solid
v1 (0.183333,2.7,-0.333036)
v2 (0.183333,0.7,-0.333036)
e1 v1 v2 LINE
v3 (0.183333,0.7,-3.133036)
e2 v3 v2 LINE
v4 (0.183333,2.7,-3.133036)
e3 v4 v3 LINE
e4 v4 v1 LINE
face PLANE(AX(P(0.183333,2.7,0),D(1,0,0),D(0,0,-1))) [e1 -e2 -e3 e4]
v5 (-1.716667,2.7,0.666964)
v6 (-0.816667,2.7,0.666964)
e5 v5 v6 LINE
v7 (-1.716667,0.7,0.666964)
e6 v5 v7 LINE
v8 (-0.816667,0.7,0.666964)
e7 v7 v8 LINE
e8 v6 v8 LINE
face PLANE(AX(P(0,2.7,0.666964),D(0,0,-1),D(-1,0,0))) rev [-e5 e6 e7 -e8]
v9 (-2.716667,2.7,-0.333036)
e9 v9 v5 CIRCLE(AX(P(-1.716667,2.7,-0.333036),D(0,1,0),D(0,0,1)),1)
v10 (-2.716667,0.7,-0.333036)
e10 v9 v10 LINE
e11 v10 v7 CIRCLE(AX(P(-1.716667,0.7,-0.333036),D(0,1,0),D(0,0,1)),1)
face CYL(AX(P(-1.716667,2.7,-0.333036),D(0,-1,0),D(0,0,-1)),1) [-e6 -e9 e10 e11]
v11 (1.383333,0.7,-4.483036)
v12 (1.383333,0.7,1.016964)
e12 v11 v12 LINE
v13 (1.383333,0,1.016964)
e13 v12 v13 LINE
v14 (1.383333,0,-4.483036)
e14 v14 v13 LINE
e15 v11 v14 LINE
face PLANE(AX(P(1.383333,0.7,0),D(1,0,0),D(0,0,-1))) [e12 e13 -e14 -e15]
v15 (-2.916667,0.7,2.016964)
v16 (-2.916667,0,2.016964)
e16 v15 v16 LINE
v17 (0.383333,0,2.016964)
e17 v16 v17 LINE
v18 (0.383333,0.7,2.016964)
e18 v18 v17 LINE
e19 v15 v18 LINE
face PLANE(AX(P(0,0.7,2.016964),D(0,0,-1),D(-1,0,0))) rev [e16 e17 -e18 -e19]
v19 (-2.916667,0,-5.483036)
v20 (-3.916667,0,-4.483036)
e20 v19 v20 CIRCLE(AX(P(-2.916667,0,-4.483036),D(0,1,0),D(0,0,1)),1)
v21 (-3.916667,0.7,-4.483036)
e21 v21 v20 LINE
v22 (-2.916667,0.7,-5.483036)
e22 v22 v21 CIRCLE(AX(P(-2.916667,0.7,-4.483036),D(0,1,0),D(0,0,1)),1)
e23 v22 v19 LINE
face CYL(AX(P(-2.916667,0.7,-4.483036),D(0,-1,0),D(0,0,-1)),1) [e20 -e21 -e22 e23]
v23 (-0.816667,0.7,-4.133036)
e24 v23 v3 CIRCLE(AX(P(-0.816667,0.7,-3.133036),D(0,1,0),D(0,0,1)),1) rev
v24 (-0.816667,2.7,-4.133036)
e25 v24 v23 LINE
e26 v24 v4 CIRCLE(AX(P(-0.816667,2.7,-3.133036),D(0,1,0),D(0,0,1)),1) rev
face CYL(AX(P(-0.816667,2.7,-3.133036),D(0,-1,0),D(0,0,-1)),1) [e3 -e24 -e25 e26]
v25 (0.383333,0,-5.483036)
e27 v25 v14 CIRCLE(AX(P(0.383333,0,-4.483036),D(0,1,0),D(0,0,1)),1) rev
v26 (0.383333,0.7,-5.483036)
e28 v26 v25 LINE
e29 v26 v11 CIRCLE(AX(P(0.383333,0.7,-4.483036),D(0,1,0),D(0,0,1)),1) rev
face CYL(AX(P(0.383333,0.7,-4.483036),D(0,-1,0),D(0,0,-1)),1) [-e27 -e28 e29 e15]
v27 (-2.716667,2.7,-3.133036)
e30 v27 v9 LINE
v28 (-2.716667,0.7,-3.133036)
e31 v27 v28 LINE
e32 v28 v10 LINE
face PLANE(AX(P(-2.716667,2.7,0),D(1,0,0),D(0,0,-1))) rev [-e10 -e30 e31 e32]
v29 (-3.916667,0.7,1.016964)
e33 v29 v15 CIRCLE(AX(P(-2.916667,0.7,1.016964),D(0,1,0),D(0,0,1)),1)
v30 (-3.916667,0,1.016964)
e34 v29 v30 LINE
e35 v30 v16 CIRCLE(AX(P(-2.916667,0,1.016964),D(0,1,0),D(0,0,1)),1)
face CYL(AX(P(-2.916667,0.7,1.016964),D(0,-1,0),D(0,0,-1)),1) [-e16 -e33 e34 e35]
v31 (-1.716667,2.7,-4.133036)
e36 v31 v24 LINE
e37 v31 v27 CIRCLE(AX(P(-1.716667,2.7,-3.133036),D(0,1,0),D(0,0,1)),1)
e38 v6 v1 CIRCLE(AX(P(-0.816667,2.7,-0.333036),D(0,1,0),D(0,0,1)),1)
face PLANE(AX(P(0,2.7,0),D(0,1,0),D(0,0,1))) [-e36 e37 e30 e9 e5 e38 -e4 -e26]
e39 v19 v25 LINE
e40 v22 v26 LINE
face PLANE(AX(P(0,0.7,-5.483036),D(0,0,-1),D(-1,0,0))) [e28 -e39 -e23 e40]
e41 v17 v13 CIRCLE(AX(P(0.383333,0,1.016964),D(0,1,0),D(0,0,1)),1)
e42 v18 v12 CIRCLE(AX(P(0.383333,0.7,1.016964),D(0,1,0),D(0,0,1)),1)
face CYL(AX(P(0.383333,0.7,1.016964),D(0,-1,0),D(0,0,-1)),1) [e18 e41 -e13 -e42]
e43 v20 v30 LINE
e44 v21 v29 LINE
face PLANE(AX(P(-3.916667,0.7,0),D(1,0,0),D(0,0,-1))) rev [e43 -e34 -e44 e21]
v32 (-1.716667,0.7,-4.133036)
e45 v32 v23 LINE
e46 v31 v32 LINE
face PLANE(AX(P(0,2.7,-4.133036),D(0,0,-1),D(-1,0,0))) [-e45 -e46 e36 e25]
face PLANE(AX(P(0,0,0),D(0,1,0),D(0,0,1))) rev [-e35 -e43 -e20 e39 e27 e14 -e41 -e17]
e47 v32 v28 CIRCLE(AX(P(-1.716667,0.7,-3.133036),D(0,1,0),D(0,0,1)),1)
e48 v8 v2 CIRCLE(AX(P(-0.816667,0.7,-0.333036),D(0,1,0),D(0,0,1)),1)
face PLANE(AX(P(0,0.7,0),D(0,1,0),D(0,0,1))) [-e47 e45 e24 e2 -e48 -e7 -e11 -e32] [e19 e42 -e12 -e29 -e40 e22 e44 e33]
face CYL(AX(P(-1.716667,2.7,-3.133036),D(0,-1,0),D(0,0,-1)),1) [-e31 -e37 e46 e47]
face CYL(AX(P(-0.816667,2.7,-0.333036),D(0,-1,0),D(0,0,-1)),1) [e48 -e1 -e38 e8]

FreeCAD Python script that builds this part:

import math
import FreeCAD as App
import Part
import Sketcher

V = App.Vector
Q = App.Units.Quantity

doc = App.newDocument("Part")
body = doc.addObject("PartDesign::Body", "Body")

sketch1 = body.newObject("Sketcher::SketchObject", "Sketch")
sketch1.AttachmentSupport = (doc.getObject("XZ_Plane"), [""])
sketch1.MapMode = "FlatFace"
sketch1.addGeometry(Part.LineSegment(V(0.4, -5.5, 0), V(-2.9, -5.5, 0)), False)
sketch1.addGeometry(Part.ArcOfCircle(Part.Circle(V(-2.9, -4.5, 0), V(0, 0, 1), 1), math.radians(-180), math.radians(-90)), False)
sketch1.addGeometry(Part.LineSegment(V(-3.9, -4.5, 0), V(-3.9, 1, 0)), False)
sketch1.addGeometry(Part.ArcOfCircle(Part.Circle(V(-2.9, 1, 0), V(0, 0, 1), 1), math.radians(90), math.radians(180)), False)
sketch1.addGeometry(Part.LineSegment(V(-2.9, 2, 0), V(0.4, 2, 0)), False)
sketch1.addGeometry(Part.ArcOfCircle(Part.Circle(V(0.4, 1, 0), V(0, 0, 1), 1), math.radians(0), math.radians(90)), False)
sketch1.addGeometry(Part.LineSegment(V(1.4, 1, 0), V(1.4, -4.5, 0)), False)
sketch1.addGeometry(Part.ArcOfCircle(Part.Circle(V(0.4, -4.5, 0), V(0, 0, 1), 1), math.radians(-90), math.radians(0)), False)
sketch1.addGeometry(Part.LineSegment(V(-1.7, -4.1, 0), V(-0.8, -4.1, 0)), False)
sketch1.addGeometry(Part.ArcOfCircle(Part.Circle(V(-0.8, -3.1, 0), V(0, 0, 1), 1), math.radians(-90), math.radians(0)), False)
sketch1.addGeometry(Part.LineSegment(V(0.2, -3.1, 0), V(0.2, -0.3, 0)), False)
sketch1.addGeometry(Part.ArcOfCircle(Part.Circle(V(-0.8, -0.3, 0), V(0, 0, 1), 1), math.radians(0), math.radians(90)), False)
sketch1.addGeometry(Part.LineSegment(V(-0.8, 0.7, 0), V(-1.7, 0.7, 0)), False)
sketch1.addGeometry(Part.ArcOfCircle(Part.Circle(V(-1.7, -0.3, 0), V(0, 0, 1), 1), math.radians(90), math.radians(180)), False)
sketch1.addGeometry(Part.LineSegment(V(-2.7, -0.3, 0), V(-2.7, -3.1, 0)), False)
sketch1.addGeometry(Part.ArcOfCircle(Part.Circle(V(-1.7, -3.1, 0), V(0, 0, 1), 1), math.radians(-180), math.radians(-90)), False)
sketch1.addConstraint(Sketcher.Constraint("Tangent", 0, 2, 1, 2))
sketch1.addConstraint(Sketcher.Constraint("Tangent", 1, 1, 2, 1))
sketch1.addConstraint(Sketcher.Constraint("Tangent", 2, 2, 3, 2))
sketch1.addConstraint(Sketcher.Constraint("Tangent", 3, 1, 4, 1))
sketch1.addConstraint(Sketcher.Constraint("Tangent", 4, 2, 5, 2))
sketch1.addConstraint(Sketcher.Constraint("Tangent", 5, 1, 6, 1))
sketch1.addConstraint(Sketcher.Constraint("Tangent", 6, 2, 7, 2))
sketch1.addConstraint(Sketcher.Constraint("Tangent", 7, 1, 0, 1))
sketch1.addConstraint(Sketcher.Constraint("Tangent", 8, 2, 9, 1))
sketch1.addConstraint(Sketcher.Constraint("Tangent", 9, 2, 10, 1))
sketch1.addConstraint(Sketcher.Constraint("Tangent", 10, 2, 11, 1))
sketch1.addConstraint(Sketcher.Constraint("Tangent", 11, 2, 12, 1))
sketch1.addConstraint(Sketcher.Constraint("Tangent", 12, 2, 13, 1))
sketch1.addConstraint(Sketcher.Constraint("Tangent", 13, 2, 14, 1))
sketch1.addConstraint(Sketcher.Constraint("Tangent", 14, 2, 15, 1))
sketch1.addConstraint(Sketcher.Constraint("Tangent", 15, 2, 8, 1))
sketch1.addConstraint(Sketcher.Constraint("Horizontal", 0))
sketch1.addConstraint(Sketcher.Constraint("Vertical", 2))
sketch1.addConstraint(Sketcher.Constraint("Horizontal", 4))
sketch1.addConstraint(Sketcher.Constraint("Vertical", 6))
sketch1.addConstraint(Sketcher.Constraint("Horizontal", 8))
sketch1.addConstraint(Sketcher.Constraint("Vertical", 10))
sketch1.addConstraint(Sketcher.Constraint("Horizontal", 12))
sketch1.addConstraint(Sketcher.Constraint("Vertical", 14))
sketch1.addConstraint(Sketcher.Constraint("Equal", 1, 3))
sketch1.addConstraint(Sketcher.Constraint("Equal", 3, 5))
sketch1.addConstraint(Sketcher.Constraint("Equal", 5, 7))
sketch1.addConstraint(Sketcher.Constraint("Equal", 7, 9))
sketch1.addConstraint(Sketcher.Constraint("Equal", 9, 11))
sketch1.addConstraint(Sketcher.Constraint("Equal", 11, 13))
sketch1.addConstraint(Sketcher.Constraint("Equal", 13, 15))
sketch1.addConstraint(Sketcher.Constraint("Radius", 1, Q("1 mm")))
sketch1.addConstraint(Sketcher.Constraint("DistanceX", 0, 2, 0, 1, Q("3.3 mm")))
sketch1.addConstraint(Sketcher.Constraint("DistanceX", 8, 1, 8, 2, Q("0.9 mm")))
sketch1.addConstraint(Sketcher.Constraint("DistanceY", 2, 1, 2, 2, Q("5.5 mm")))
sketch1.addConstraint(Sketcher.Constraint("DistanceY", 10, 1, 10, 2, Q("2.8 mm")))
sketch1.addConstraint(Sketcher.Constraint("DistanceX", 9, 3, 7, 3, Q("1.2 mm")))
sketch1.addConstraint(Sketcher.Constraint("DistanceY", 7, 3, 9, 3, Q("1.35 mm")))
sketch1.addConstraint(Sketcher.Constraint("DistanceX", 1, 3, -1, 1, Q("2.916667 mm")))
sketch1.addConstraint(Sketcher.Constraint("DistanceY", 1, 3, -1, 1, Q("4.483036 mm")))
pad1 = body.newObject("PartDesign::Pad", "Pad")
pad1.Profile = sketch1
pad1.Length = 0.7
pad1.Reversed = True

sketch2 = body.newObject("Sketcher::SketchObject", "Sketch001")
sketch2.AttachmentSupport = (doc.getObject("XZ_Plane"), [""])
sketch2.MapMode = "FlatFace"
sketch2.addGeometry(Part.LineSegment(V(-0.8, -4.1, 0), V(-1.7, -4.1, 0)), False)
sketch2.addGeometry(Part.ArcOfCircle(Part.Circle(V(-1.7, -3.1, 0), V(0, 0, 1), 1), math.radians(-180), math.radians(-90)), False)
sketch2.addGeometry(Part.LineSegment(V(-2.7, -3.1, 0), V(-2.7, -0.3, 0)), False)
sketch2.addGeometry(Part.ArcOfCircle(Part.Circle(V(-1.7, -0.3, 0), V(0, 0, 1), 1), math.radians(90), math.radians(180)), False)
sketch2.addGeometry(Part.LineSegment(V(-1.7, 0.7, 0), V(-0.8, 0.7, 0)), False)
sketch2.addGeometry(Part.ArcOfCircle(Part.Circle(V(-0.8, -0.3, 0), V(0, 0, 1), 1), math.radians(0), math.radians(90)), False)
sketch2.addGeometry(Part.LineSegment(V(0.2, -0.3, 0), V(0.2, -3.1, 0)), False)
sketch2.addGeometry(Part.ArcOfCircle(Part.Circle(V(-0.8, -3.1, 0), V(0, 0, 1), 1), math.radians(-90), math.radians(0)), False)
sketch2.addConstraint(Sketcher.Constraint("Tangent", 0, 2, 1, 2))
sketch2.addConstraint(Sketcher.Constraint("Tangent", 1, 1, 2, 1))
sketch2.addConstraint(Sketcher.Constraint("Tangent", 2, 2, 3, 2))
sketch2.addConstraint(Sketcher.Constraint("Tangent", 3, 1, 4, 1))
sketch2.addConstraint(Sketcher.Constraint("Tangent", 4, 2, 5, 2))
sketch2.addConstraint(Sketcher.Constraint("Tangent", 5, 1, 6, 1))
sketch2.addConstraint(Sketcher.Constraint("Tangent", 6, 2, 7, 2))
sketch2.addConstraint(Sketcher.Constraint("Tangent", 7, 1, 0, 1))
sketch2.addConstraint(Sketcher.Constraint("Horizontal", 0))
sketch2.addConstraint(Sketcher.Constraint("Vertical", 2))
sketch2.addConstraint(Sketcher.Constraint("Horizontal", 4))
sketch2.addConstraint(Sketcher.Constraint("Vertical", 6))
sketch2.addConstraint(Sketcher.Constraint("Equal", 1, 3))
sketch2.addConstraint(Sketcher.Constraint("Equal", 3, 5))
sketch2.addConstraint(Sketcher.Constraint("Equal", 5, 7))
sketch2.addConstraint(Sketcher.Constraint("Radius", 1, Q("1 mm")))
sketch2.addConstraint(Sketcher.Constraint("DistanceX", 0, 2, 0, 1, Q("0.9 mm")))
sketch2.addConstraint(Sketcher.Constraint("DistanceY", 2, 1, 2, 2, Q("2.8 mm")))
sketch2.addConstraint(Sketcher.Constraint("DistanceX", 1, 3, -1, 1, Q("1.716667 mm")))
sketch2.addConstraint(Sketcher.Constraint("DistanceY", 1, 3, -1, 1, Q("3.133036 mm")))
pad2 = body.newObject("PartDesign::Pad", "Pad001")
pad2.Profile = sketch2
pad2.Length = 2.7
pad2.Reversed = True

doc.recompute()
